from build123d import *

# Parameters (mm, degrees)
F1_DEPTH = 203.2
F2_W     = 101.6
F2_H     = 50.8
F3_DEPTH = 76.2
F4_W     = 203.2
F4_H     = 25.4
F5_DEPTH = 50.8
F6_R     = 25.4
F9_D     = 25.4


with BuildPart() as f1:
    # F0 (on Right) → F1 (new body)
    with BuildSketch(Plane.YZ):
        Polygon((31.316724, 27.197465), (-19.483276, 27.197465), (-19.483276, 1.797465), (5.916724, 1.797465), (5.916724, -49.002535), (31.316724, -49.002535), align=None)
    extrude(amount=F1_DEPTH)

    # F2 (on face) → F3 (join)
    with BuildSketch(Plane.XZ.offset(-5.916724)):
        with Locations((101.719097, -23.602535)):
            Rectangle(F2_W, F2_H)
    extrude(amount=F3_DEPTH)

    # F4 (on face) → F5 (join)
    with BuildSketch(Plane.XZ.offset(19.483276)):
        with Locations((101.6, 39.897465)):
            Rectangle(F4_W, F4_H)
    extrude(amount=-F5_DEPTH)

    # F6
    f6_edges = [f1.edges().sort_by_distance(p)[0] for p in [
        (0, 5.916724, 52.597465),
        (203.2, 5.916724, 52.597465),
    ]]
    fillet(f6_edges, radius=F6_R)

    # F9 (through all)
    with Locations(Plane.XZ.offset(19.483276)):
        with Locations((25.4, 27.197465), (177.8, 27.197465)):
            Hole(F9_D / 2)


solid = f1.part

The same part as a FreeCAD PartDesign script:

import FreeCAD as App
import Part
import Sketcher

V = App.Vector
Q = App.Units.Quantity


def edges_at(feature, points):
    """Names of the edges that pass closest to the given points."""
    edges = feature.Shape.Edges
    near = lambda p: min(range(len(edges)), key=lambda i: edges[i].distToShape(Part.Vertex(*p))[0])
    return sorted({f"Edge{near(p) + 1}" for p in points})


def add_polygon(sketch, points):
    """Adds a closed chain of lines whose ends are joined by coincident constraints."""
    first, n = sketch.GeometryCount, len(points)
    for a, b in zip(points, points[1:] + points[:1]):
        sketch.addGeometry(Part.LineSegment(App.Vector(*a, 0), App.Vector(*b, 0)), False)
    for i in range(n):
        sketch.addConstraint(Sketcher.Constraint("Coincident", first + i, 2, first + (i + 1) % n, 1))

doc = App.newDocument("Part")
body = doc.addObject("PartDesign::Body", "Body")

sketch1 = body.newObject("Sketcher::SketchObject", "Sketch")
sketch1.AttachmentSupport = (doc.getObject("YZ_Plane"), [""])
sketch1.MapMode = "FlatFace"
add_polygon(sketch1, [(31.316724, 27.197465), (-19.483276, 27.197465), (-19.483276, 1.797465), (5.916724, 1.797465), (5.916724, -49.002535), (31.316724, -49.002535)])
sketch1.addConstraint([
    Sketcher.Constraint("Horizontal", 0),
    Sketcher.Constraint("Vertical", 1),
    Sketcher.Constraint("Horizontal", 2),
    Sketcher.Constraint("Vertical", 3),
    Sketcher.Constraint("Horizontal", 4),
    Sketcher.Constraint("Vertical", 5),
    Sketcher.Constraint("Equal", 2, 4),
    Sketcher.Constraint("Equal", 4, 1),
    Sketcher.Constraint("Equal", 0, 3),
    Sketcher.Constraint("DistanceX", 0, 2, 0, 1, Q("2 in")),
    Sketcher.Constraint("DistanceX", 0, 2, -1, 1, Q("19.483276 mm")),
    Sketcher.Constraint("DistanceY", -1, 1, 0, 2, Q("27.197465 mm")),
])
pad1 = body.newObject("PartDesign::Pad", "Pad")
pad1.Profile = sketch1
pad1.Length = Q("8 in")

sketch2 = body.newObject("Sketcher::SketchObject", "Sketch001")
sketch2.AttachmentSupport = (doc.getObject("XZ_Plane"), [""])
sketch2.MapMode = "FlatFace"
sketch2.AttachmentOffset = App.Placement(V(0, 0, -5.916724), App.Rotation())
add_polygon(sketch2, [(50.919097, 1.797465), (50.919097, -49.002535), (152.519097, -49.002535), (152.519097, 1.797465)])
sketch2.addConstraint([
    Sketcher.Constraint("Vertical", 0),
    Sketcher.Constraint("Horizontal", 1),
    Sketcher.Constraint("Vertical", 2),
    Sketcher.Constraint("Horizontal", 3),
    Sketcher.Constraint("DistanceX", 1, 1, 1, 2, Q("4 in")),
    Sketcher.Constraint("DistanceY", 0, 2, 0, 1, Q("2 in")),
    Sketcher.Constraint("DistanceX", -1, 1, 0, 2, Q("50.919097 mm")),
    Sketcher.Constraint("DistanceY", 0, 2, -1, 1, Q("49.002535 mm")),
])
pad2 = body.newObject("PartDesign::Pad", "Pad001")
pad2.Profile = sketch2
pad2.Length = Q("3 in")

sketch3 = body.newObject("Sketcher::SketchObject", "Sketch002")
sketch3.AttachmentSupport = (doc.getObject("XZ_Plane"), [""])
sketch3.MapMode = "FlatFace"
sketch3.AttachmentOffset = App.Placement(V(0, 0, 19.483276), App.Rotation())
add_polygon(sketch3, [(0, 52.597465), (0, 27.197465), (203.2, 27.197465), (203.2, 52.597465)])
sketch3.addConstraint([
    Sketcher.Constraint("Vertical", 0),
    Sketcher.Constraint("Horizontal", 1),
    Sketcher.Constraint("Vertical", 2),
    Sketcher.Constraint("Horizontal", 3),
    Sketcher.Constraint("PointOnObject", 0, 2, -2),
    Sketcher.Constraint("DistanceX", 1, 1, 1, 2, Q("8 in")),
    Sketcher.Constraint("DistanceY", 0, 2, 0, 1, Q("1 in")),
    Sketcher.Constraint("DistanceY", -1, 1, 0, 2, Q("27.197465 mm")),
])
pad3 = body.newObject("PartDesign::Pad", "Pad002")
pad3.Profile = sketch3
pad3.Length = Q("2 in")
pad3.Reversed = True
doc.recompute()

fillet = body.newObject("PartDesign::Fillet", "Fillet")
fillet.Base = (pad3, edges_at(pad3, [(0, 5.917, 52.597), (203.2, 5.917, 52.597)]))
fillet.Radius = Q("1 in")

sketch4 = body.newObject("Sketcher::SketchObject", "Sketch003")
sketch4.AttachmentSupport = (doc.getObject("XZ_Plane"), [""])
sketch4.MapMode = "FlatFace"
sketch4.AttachmentOffset = App.Placement(V(0, 0, 19.483276), App.Rotation())
sketch4.addGeometry([
    Part.Circle(V(25.4, 27.197465, 0), V(0, 0, 1), 12.7),
    Part.Circle(V(177.8, 27.197465, 0), V(0, 0, 1), 12.7),
], False)
sketch4.addConstraint([
    Sketcher.Constraint("Equal", 0, 1),
    Sketcher.Constraint("Horizontal", 0, 3, 1, 3),
    Sketcher.Constraint("Diameter", 0, Q("1 in")),
    Sketcher.Constraint("DistanceX", -1, 1, 0, 3, Q("1 in")),
    Sketcher.Constraint("DistanceX", -1, 1, 1, 3, Q("7 in")),
    Sketcher.Constraint("DistanceY", -1, 1, 0, 3, Q("27.197465 mm")),
])
doc.recompute()
hole = body.newObject("PartDesign::Hole", "Hole")
hole.Profile = sketch4
hole.ThreadType = "None"
hole.Diameter = Q("1 in")
hole.DepthType = "ThroughAll"

doc.recompute()
